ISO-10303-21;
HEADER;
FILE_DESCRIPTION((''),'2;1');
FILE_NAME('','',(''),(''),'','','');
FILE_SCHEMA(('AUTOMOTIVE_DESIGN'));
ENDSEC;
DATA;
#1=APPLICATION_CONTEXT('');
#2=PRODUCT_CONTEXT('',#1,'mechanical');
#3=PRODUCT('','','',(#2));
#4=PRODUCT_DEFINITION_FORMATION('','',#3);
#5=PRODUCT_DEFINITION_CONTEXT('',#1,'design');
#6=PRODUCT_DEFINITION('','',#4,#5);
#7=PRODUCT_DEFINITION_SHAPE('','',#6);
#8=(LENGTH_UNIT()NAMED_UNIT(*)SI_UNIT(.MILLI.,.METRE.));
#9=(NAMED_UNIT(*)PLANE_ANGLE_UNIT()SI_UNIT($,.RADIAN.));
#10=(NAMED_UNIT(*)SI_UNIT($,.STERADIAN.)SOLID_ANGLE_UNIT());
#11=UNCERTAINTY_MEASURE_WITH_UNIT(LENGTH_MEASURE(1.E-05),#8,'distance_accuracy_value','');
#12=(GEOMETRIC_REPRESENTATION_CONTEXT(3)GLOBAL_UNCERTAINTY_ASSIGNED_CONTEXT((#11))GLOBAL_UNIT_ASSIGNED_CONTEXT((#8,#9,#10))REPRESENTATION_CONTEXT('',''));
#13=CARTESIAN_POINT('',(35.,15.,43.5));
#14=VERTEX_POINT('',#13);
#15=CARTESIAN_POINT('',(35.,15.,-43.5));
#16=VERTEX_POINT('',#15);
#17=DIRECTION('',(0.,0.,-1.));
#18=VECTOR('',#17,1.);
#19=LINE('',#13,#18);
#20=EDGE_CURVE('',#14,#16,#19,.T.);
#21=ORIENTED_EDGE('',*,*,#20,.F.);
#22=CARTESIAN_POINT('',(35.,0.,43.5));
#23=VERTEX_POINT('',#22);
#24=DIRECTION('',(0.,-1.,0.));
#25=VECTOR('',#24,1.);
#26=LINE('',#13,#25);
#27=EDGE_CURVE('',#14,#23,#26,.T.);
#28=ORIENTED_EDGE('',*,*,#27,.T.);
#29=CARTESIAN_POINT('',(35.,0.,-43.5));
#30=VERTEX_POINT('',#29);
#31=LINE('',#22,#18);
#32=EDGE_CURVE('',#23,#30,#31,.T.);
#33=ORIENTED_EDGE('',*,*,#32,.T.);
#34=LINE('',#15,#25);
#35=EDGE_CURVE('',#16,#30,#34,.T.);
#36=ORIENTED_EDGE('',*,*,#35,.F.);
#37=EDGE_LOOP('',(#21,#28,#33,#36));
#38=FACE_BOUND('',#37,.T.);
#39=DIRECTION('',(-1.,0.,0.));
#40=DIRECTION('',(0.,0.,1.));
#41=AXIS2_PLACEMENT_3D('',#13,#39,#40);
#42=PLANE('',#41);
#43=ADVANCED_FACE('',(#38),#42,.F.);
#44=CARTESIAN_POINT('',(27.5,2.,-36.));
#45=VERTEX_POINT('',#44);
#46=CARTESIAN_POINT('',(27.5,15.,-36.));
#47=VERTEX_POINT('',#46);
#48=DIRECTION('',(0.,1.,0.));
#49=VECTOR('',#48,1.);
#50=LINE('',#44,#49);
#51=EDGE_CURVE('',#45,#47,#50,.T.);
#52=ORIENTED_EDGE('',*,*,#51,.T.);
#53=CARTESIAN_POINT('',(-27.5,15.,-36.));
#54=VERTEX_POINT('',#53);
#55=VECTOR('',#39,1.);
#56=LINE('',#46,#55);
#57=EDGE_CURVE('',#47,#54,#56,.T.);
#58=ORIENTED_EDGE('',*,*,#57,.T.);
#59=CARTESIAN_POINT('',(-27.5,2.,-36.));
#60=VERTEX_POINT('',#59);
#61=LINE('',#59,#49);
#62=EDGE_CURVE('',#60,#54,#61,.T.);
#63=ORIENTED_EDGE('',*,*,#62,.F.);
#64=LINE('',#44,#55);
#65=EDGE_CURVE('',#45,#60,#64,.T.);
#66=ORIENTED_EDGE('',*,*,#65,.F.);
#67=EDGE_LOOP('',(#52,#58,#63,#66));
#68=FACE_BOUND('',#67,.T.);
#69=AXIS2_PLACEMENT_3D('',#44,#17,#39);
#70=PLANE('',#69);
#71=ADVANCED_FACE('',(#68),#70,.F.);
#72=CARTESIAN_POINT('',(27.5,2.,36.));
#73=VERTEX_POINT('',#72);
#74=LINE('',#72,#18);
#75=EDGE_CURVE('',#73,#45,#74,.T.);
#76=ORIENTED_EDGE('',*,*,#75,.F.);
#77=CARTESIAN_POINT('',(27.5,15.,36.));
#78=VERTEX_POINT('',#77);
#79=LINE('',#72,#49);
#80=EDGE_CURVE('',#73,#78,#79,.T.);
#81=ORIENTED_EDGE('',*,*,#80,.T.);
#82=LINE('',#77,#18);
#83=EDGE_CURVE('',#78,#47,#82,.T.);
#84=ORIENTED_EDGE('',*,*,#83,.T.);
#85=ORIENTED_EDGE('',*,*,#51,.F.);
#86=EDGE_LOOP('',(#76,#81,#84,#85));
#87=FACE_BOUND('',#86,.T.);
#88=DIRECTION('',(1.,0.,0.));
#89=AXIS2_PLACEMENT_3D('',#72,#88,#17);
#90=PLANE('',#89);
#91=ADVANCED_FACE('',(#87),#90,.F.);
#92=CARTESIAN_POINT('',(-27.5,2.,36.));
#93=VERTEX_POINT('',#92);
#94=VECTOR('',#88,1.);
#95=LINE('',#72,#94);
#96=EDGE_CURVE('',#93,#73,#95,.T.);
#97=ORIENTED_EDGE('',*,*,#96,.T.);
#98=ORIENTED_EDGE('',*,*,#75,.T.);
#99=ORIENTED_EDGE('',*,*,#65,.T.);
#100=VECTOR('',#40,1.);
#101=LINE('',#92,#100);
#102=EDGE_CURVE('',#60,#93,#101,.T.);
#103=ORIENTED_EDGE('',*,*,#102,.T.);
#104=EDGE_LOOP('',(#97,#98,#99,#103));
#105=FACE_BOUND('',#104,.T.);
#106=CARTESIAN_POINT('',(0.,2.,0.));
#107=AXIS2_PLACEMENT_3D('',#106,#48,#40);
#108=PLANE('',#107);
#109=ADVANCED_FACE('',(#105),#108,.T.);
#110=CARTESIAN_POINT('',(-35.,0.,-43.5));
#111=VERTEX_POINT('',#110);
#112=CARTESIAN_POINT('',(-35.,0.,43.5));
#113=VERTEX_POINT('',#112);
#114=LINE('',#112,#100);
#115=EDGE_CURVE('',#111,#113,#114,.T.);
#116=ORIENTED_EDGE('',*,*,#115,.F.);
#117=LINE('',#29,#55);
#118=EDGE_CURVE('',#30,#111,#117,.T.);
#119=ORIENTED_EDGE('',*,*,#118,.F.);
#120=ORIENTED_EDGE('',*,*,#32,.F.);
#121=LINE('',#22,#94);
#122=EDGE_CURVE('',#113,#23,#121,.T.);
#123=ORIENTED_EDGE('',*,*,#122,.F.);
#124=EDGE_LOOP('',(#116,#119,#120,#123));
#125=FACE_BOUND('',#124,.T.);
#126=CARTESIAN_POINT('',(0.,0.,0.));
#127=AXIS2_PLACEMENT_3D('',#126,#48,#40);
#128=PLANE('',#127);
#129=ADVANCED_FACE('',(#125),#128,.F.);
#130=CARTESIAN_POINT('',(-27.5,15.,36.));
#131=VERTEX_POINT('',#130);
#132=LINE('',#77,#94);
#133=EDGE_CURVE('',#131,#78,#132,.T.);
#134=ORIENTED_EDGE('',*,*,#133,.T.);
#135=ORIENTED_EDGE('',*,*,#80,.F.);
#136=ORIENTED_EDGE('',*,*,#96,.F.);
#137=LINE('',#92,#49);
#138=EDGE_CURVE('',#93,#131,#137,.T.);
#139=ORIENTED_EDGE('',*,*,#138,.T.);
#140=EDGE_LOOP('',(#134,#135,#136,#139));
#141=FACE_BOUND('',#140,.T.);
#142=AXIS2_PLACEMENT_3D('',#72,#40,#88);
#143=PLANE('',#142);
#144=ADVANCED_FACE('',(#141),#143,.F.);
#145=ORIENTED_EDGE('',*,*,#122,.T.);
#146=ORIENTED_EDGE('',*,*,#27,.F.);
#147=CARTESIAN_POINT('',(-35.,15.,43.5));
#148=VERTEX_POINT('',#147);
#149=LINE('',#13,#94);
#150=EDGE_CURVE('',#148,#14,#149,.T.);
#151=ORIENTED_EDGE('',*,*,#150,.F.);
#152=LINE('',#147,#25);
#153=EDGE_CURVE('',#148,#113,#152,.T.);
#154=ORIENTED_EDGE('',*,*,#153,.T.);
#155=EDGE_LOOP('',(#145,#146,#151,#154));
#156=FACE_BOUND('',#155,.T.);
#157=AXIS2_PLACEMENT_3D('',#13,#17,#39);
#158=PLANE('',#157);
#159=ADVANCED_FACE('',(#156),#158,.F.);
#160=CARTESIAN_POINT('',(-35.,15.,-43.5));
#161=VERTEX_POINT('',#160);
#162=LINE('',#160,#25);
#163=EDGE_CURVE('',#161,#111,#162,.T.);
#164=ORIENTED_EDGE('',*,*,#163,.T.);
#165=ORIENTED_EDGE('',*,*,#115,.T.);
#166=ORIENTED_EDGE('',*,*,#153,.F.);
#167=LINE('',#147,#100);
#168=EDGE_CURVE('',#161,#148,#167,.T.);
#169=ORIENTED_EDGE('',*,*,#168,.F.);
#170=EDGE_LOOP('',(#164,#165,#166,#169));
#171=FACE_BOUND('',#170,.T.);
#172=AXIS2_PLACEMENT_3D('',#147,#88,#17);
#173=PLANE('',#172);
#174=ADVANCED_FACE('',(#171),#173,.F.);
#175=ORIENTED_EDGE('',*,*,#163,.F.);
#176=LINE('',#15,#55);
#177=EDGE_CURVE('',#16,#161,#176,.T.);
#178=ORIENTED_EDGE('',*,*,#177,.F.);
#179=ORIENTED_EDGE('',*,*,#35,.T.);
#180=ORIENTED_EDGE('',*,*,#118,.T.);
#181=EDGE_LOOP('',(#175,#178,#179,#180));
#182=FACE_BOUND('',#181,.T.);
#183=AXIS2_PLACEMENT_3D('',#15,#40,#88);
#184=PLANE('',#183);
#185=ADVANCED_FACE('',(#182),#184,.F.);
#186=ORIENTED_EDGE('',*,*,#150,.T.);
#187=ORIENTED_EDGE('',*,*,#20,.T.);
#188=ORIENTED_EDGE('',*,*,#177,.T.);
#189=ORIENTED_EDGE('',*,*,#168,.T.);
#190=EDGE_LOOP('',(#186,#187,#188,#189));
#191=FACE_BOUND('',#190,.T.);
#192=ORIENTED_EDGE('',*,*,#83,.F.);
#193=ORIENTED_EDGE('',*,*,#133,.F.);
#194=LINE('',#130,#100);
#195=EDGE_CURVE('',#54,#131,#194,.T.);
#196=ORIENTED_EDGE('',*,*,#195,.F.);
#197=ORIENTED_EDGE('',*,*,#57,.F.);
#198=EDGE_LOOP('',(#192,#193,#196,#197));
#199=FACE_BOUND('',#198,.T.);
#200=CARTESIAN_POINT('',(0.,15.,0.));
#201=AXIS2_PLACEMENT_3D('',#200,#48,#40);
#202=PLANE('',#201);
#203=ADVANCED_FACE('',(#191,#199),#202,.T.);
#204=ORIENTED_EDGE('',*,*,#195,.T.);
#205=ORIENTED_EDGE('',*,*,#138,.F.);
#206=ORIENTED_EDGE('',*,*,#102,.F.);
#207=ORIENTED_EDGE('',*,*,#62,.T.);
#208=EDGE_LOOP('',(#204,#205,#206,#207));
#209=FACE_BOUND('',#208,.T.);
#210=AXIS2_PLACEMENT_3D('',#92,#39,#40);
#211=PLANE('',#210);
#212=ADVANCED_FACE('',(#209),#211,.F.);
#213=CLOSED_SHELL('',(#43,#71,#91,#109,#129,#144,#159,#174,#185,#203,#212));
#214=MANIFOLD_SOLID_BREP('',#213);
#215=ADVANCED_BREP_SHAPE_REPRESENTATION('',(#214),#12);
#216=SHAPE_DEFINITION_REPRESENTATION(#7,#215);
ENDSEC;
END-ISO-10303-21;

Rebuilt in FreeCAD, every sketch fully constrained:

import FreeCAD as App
import Part
import Sketcher

V = App.Vector

doc = App.newDocument("Part")
body = doc.addObject("PartDesign::Body", "Body")

# Sketch on XZ plane
sketch1 = body.newObject("Sketcher::SketchObject", "Sketch")
sketch1.AttachmentSupport = (doc.getObject("XZ_Plane"), [""])
sketch1.MapMode = "FlatFace"
sketch1.addGeometry(Part.LineSegment(V(-35, -44, 0), V(-35, 44, 0)), False)
sketch1.addGeometry(Part.LineSegment(V(-35, 44, 0), V(35, 44, 0)), False)
sketch1.addGeometry(Part.LineSegment(V(35, 44, 0), V(35, -44, 0)), False)
sketch1.addGeometry(Part.LineSegment(V(35, -44, 0), V(-35, -44, 0)), False)
sketch1.addConstraint(Sketcher.Constraint("Coincident", 0, 2, 1, 1))
sketch1.addConstraint(Sketcher.Constraint("Coincident", 1, 2, 2, 1))
sketch1.addConstraint(Sketcher.Constraint("Coincident", 2, 2, 3, 1))
sketch1.addConstraint(Sketcher.Constraint("Coincident", 3, 2, 0, 1))
sketch1.addConstraint(Sketcher.Constraint("Vertical", 0))
sketch1.addConstraint(Sketcher.Constraint("Horizontal", 1))
sketch1.addConstraint(Sketcher.Constraint("Vertical", 2))
sketch1.addConstraint(Sketcher.Constraint("Horizontal", 3))
sketch1.addConstraint(Sketcher.Constraint("Symmetric", 0, 2, 2, 2, -1, 1))
sketch1.addConstraint(Sketcher.Constraint("DistanceX", 1, 1, 1, 2, 70.0))
sketch1.addConstraint(Sketcher.Constraint("DistanceY", 0, 1, 0, 2, 87.0))
pad1 = body.newObject("PartDesign::Pad", "Pad")
pad1.Profile = sketch1
pad1.Length = 15
pad1.Reversed = True

# Sketch on XZ plane
sketch2 = body.newObject("Sketcher::SketchObject", "Sketch001")
sketch2.AttachmentSupport = (doc.getObject("XZ_Plane"), [""])
sketch2.MapMode = "FlatFace"
sketch2.AttachmentOffset = App.Placement(V(0, 0, -15), App.Rotation())
sketch2.addGeometry(Part.LineSegment(V(-28, -36, 0), V(-28, 36, 0)), False)
sketch2.addGeometry(Part.LineSegment(V(-28, 36, 0), V(28, 36, 0)), False)
sketch2.addGeometry(Part.LineSegment(V(28, 36, 0), V(28, -36, 0)), False)
sketch2.addGeometry(Part.LineSegment(V(28, -36, 0), V(-28, -36, 0)), False)
sketch2.addConstraint(Sketcher.Constraint("Coincident", 0, 2, 1, 1))
sketch2.addConstraint(Sketcher.Constraint("Coincident", 1, 2, 2, 1))
sketch2.addConstraint(Sketcher.Constraint("Coincident", 2, 2, 3, 1))
sketch2.addConstraint(Sketcher.Constraint("Coincident", 3, 2, 0, 1))
sketch2.addConstraint(Sketcher.Constraint("Vertical", 0))
sketch2.addConstraint(Sketcher.Constraint("Horizontal", 1))
sketch2.addConstraint(Sketcher.Constraint("Vertical", 2))
sketch2.addConstraint(Sketcher.Constraint("Horizontal", 3))
sketch2.addConstraint(Sketcher.Constraint("Symmetric", 0, 2, 2, 2, -1, 1))
sketch2.addConstraint(Sketcher.Constraint("DistanceX", 1, 1, 1, 2, 55.0))
sketch2.addConstraint(Sketcher.Constraint("DistanceY", 0, 1, 0, 2, 72.0))
pocket1 = body.newObject("PartDesign::Pocket", "Pocket")
pocket1.Profile = sketch2
pocket1.Length = 13
pocket1.Reversed = True

doc.recompute()
